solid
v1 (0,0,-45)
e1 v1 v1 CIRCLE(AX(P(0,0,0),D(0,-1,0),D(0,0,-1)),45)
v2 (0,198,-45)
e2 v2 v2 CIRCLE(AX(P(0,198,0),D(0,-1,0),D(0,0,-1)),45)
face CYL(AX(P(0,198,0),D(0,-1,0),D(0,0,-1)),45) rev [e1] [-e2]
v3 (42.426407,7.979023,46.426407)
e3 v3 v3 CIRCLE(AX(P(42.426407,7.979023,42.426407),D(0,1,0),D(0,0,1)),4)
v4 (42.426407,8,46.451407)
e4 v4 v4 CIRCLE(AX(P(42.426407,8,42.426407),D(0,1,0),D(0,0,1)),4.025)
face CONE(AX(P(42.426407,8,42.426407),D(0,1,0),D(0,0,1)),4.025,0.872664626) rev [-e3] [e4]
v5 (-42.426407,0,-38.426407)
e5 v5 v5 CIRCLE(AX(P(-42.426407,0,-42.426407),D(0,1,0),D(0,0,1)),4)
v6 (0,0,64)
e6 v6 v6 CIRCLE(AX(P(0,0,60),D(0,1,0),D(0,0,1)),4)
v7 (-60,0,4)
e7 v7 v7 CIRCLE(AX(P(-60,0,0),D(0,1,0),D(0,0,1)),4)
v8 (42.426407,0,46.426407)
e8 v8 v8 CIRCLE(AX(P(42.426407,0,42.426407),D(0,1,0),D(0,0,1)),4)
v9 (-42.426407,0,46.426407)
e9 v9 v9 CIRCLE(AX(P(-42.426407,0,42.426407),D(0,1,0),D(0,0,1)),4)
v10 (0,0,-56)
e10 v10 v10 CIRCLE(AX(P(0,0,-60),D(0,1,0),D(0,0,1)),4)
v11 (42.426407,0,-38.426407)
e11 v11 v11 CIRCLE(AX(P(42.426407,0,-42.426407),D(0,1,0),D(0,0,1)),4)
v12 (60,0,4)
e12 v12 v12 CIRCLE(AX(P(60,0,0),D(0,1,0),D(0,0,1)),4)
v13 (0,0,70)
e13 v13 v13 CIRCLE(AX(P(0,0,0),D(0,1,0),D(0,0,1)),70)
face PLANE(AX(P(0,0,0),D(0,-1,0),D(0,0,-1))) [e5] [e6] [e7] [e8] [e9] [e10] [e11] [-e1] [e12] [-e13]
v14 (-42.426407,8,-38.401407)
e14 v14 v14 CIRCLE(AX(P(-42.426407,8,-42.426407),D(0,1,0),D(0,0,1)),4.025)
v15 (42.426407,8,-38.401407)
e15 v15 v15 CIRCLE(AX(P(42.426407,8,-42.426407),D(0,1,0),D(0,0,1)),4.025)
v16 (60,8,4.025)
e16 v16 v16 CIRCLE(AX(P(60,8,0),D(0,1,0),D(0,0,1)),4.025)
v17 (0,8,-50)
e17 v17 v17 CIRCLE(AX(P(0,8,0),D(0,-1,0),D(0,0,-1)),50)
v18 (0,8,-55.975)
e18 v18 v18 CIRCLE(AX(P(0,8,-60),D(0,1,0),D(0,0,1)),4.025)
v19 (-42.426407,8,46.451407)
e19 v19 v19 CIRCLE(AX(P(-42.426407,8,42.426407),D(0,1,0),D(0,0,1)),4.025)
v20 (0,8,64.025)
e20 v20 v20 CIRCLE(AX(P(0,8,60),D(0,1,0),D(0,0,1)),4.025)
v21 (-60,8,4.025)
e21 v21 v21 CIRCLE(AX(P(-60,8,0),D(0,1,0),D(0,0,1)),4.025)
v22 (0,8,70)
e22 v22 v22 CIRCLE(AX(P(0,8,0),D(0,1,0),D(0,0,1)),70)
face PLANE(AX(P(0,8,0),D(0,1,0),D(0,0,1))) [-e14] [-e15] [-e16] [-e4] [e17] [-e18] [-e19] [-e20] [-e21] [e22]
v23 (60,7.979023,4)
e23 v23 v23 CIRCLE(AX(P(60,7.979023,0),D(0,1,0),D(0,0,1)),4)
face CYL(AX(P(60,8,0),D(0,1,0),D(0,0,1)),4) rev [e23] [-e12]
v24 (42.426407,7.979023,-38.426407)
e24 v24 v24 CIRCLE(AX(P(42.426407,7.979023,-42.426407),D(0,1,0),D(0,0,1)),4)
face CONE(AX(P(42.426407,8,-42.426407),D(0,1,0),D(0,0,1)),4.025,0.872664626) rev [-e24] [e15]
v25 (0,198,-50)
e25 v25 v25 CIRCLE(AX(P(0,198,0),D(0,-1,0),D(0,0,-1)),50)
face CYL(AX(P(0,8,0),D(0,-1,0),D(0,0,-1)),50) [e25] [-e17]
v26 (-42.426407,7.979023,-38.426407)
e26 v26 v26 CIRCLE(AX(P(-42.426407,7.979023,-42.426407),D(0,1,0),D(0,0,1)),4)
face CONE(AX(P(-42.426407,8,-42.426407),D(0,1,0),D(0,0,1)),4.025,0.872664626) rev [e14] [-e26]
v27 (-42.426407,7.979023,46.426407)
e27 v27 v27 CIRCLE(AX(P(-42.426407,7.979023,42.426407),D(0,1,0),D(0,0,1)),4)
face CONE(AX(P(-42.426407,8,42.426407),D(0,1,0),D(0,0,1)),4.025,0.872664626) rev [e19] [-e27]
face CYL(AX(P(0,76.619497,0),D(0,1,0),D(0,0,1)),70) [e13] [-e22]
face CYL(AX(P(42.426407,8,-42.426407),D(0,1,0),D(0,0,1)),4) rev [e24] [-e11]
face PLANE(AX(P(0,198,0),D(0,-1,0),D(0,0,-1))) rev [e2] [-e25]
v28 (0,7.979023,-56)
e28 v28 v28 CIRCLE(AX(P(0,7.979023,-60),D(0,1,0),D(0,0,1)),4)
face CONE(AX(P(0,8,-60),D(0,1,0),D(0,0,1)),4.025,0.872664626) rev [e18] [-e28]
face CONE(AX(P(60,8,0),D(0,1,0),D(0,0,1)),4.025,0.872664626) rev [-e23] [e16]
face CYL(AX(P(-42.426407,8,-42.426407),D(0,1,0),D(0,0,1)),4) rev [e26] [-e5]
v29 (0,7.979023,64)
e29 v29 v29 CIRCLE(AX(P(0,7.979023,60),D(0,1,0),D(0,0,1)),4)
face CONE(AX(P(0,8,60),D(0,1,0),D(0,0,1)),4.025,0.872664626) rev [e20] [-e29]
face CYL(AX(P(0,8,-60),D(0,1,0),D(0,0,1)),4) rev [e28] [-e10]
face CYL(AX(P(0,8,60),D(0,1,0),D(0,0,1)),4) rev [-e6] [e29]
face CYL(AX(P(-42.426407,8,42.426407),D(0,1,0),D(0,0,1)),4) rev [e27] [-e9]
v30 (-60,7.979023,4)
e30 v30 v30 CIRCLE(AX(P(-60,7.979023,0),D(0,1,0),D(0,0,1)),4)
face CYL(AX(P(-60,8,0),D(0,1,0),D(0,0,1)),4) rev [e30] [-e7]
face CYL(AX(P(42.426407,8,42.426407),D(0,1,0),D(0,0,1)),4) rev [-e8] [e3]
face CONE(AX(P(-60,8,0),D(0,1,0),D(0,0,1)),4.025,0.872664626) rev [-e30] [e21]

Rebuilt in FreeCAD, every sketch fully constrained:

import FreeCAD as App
import Part
import Sketcher

V = App.Vector
Q = App.Units.Quantity


def add_polygon(sketch, points):
    """Adds a closed chain of lines whose ends are joined by coincident constraints."""
    first, n = sketch.GeometryCount, len(points)
    for a, b in zip(points, points[1:] + points[:1]):
        sketch.addGeometry(Part.LineSegment(App.Vector(*a, 0), App.Vector(*b, 0)), False)
    for i in range(n):
        sketch.addConstraint(Sketcher.Constraint("Coincident", first + i, 2, first + (i + 1) % n, 1))

doc = App.newDocument("Part")
body = doc.addObject("PartDesign::Body", "Body")

sketch1 = doc.addObject("Sketcher::SketchObject", "Sketch")
body.addObject(sketch1)
sketch1.AttachmentSupport = (doc.XY_Plane, [""])
sketch1.MapMode = "FlatFace"
add_polygon(sketch1, [(-70, 8), (-70, 0), (0, 0), (0, 8)])
sketch1.addConstraint(Sketcher.Constraint("Vertical", 0))
sketch1.addConstraint(Sketcher.Constraint("Horizontal", 1))
sketch1.addConstraint(Sketcher.Constraint("Vertical", 2))
sketch1.addConstraint(Sketcher.Constraint("Horizontal", 3))
sketch1.addConstraint(Sketcher.Constraint("Coincident", 1, 2, -1, 1))
sketch1.addConstraint(Sketcher.Constraint("DistanceX", 1, 1, 1, 2, Q("70 mm")))
sketch1.addConstraint(Sketcher.Constraint("DistanceY", 0, 2, 0, 1, Q("8 mm")))
revolution = doc.addObject("PartDesign::Revolution", "Revolution")
body.addObject(revolution)
revolution.Profile = sketch1
revolution.ReferenceAxis = (sketch1, ["V_Axis"])
revolution.Angle = 360

sketch2 = doc.addObject("Sketcher::SketchObject", "Sketch001")
body.addObject(sketch2)
sketch2.AttachmentSupport = (doc.XZ_Plane, [""])
sketch2.MapMode = "FlatFace"
sketch2.AttachmentOffset = App.Placement(V(0, 0, -8), App.Rotation())
sketch2.addGeometry(Part.Circle(V(-60, 0, 0), V(0, 0, 1), 4), False)
sketch2.addConstraint(Sketcher.Constraint("PointOnObject", 0, 3, -1))
sketch2.addConstraint(Sketcher.Constraint("Diameter", 0, Q("8 mm")))
sketch2.addConstraint(Sketcher.Constraint("DistanceX", 0, 3, -1, 1, Q("60 mm")))
doc.recompute()
hole = doc.addObject("PartDesign::Hole", "Hole")
body.addObject(hole)
hole.Profile = sketch2
hole.ThreadType = "None"
hole.Diameter = 8
hole.DepthType = "ThroughAll"
hole.HoleCutType = "Countersink"
hole.HoleCutDiameter = 8.05
hole.HoleCutCountersinkAngle = 100
hole.Reversed = True
doc.recompute()

polarpattern = doc.addObject("PartDesign::PolarPattern", "PolarPattern")
body.addObject(polarpattern)
polarpattern.Originals = [hole]
polarpattern.Axis = (doc.Y_Axis, [""])
polarpattern.Angle = 360
polarpattern.Occurrences = 8
body.Tip = polarpattern

sketch3 = doc.addObject("Sketcher::SketchObject", "Sketch002")
body.addObject(sketch3)
sketch3.AttachmentSupport = (doc.XY_Plane, [""])
sketch3.MapMode = "FlatFace"
add_polygon(sketch3, [(-50, 198), (-50, 8), (0, 8), (0, 198)])
sketch3.addConstraint(Sketcher.Constraint("Vertical", 0))
sketch3.addConstraint(Sketcher.Constraint("Horizontal", 1))
sketch3.addConstraint(Sketcher.Constraint("Vertical", 2))
sketch3.addConstraint(Sketcher.Constraint("Horizontal", 3))
sketch3.addConstraint(Sketcher.Constraint("PointOnObject", 1, 2, -2))
sketch3.addConstraint(Sketcher.Constraint("DistanceX", 1, 1, 1, 2, Q("50 mm")))
sketch3.addConstraint(Sketcher.Constraint("DistanceY", 0, 2, 0, 1, Q("190 mm")))
sketch3.addConstraint(Sketcher.Constraint("DistanceY", -1, 1, 0, 2, Q("8 mm")))
revolution2 = doc.addObject("PartDesign::Revolution", "Revolution001")
body.addObject(revolution2)
revolution2.Profile = sketch3
revolution2.ReferenceAxis = (sketch3, ["V_Axis"])
revolution2.Angle = 360

sketch4 = doc.addObject("Sketcher::SketchObject", "Sketch003")
body.addObject(sketch4)
sketch4.AttachmentSupport = (doc.XZ_Plane, [""])
sketch4.MapMode = "FlatFace"
sketch4.addGeometry(Part.Circle(V(0, 0, 0), V(0, 0, 1), 45), False)
sketch4.addConstraint(Sketcher.Constraint("Coincident", 0, 3, -1, 1))
sketch4.addConstraint(Sketcher.Constraint("Diameter", 0, Q("90 mm")))
pocket1 = doc.addObject("PartDesign::Pocket", "Pocket")
body.addObject(pocket1)
pocket1.Profile = sketch4
pocket1.Type = "ThroughAll"

doc.recompute()
